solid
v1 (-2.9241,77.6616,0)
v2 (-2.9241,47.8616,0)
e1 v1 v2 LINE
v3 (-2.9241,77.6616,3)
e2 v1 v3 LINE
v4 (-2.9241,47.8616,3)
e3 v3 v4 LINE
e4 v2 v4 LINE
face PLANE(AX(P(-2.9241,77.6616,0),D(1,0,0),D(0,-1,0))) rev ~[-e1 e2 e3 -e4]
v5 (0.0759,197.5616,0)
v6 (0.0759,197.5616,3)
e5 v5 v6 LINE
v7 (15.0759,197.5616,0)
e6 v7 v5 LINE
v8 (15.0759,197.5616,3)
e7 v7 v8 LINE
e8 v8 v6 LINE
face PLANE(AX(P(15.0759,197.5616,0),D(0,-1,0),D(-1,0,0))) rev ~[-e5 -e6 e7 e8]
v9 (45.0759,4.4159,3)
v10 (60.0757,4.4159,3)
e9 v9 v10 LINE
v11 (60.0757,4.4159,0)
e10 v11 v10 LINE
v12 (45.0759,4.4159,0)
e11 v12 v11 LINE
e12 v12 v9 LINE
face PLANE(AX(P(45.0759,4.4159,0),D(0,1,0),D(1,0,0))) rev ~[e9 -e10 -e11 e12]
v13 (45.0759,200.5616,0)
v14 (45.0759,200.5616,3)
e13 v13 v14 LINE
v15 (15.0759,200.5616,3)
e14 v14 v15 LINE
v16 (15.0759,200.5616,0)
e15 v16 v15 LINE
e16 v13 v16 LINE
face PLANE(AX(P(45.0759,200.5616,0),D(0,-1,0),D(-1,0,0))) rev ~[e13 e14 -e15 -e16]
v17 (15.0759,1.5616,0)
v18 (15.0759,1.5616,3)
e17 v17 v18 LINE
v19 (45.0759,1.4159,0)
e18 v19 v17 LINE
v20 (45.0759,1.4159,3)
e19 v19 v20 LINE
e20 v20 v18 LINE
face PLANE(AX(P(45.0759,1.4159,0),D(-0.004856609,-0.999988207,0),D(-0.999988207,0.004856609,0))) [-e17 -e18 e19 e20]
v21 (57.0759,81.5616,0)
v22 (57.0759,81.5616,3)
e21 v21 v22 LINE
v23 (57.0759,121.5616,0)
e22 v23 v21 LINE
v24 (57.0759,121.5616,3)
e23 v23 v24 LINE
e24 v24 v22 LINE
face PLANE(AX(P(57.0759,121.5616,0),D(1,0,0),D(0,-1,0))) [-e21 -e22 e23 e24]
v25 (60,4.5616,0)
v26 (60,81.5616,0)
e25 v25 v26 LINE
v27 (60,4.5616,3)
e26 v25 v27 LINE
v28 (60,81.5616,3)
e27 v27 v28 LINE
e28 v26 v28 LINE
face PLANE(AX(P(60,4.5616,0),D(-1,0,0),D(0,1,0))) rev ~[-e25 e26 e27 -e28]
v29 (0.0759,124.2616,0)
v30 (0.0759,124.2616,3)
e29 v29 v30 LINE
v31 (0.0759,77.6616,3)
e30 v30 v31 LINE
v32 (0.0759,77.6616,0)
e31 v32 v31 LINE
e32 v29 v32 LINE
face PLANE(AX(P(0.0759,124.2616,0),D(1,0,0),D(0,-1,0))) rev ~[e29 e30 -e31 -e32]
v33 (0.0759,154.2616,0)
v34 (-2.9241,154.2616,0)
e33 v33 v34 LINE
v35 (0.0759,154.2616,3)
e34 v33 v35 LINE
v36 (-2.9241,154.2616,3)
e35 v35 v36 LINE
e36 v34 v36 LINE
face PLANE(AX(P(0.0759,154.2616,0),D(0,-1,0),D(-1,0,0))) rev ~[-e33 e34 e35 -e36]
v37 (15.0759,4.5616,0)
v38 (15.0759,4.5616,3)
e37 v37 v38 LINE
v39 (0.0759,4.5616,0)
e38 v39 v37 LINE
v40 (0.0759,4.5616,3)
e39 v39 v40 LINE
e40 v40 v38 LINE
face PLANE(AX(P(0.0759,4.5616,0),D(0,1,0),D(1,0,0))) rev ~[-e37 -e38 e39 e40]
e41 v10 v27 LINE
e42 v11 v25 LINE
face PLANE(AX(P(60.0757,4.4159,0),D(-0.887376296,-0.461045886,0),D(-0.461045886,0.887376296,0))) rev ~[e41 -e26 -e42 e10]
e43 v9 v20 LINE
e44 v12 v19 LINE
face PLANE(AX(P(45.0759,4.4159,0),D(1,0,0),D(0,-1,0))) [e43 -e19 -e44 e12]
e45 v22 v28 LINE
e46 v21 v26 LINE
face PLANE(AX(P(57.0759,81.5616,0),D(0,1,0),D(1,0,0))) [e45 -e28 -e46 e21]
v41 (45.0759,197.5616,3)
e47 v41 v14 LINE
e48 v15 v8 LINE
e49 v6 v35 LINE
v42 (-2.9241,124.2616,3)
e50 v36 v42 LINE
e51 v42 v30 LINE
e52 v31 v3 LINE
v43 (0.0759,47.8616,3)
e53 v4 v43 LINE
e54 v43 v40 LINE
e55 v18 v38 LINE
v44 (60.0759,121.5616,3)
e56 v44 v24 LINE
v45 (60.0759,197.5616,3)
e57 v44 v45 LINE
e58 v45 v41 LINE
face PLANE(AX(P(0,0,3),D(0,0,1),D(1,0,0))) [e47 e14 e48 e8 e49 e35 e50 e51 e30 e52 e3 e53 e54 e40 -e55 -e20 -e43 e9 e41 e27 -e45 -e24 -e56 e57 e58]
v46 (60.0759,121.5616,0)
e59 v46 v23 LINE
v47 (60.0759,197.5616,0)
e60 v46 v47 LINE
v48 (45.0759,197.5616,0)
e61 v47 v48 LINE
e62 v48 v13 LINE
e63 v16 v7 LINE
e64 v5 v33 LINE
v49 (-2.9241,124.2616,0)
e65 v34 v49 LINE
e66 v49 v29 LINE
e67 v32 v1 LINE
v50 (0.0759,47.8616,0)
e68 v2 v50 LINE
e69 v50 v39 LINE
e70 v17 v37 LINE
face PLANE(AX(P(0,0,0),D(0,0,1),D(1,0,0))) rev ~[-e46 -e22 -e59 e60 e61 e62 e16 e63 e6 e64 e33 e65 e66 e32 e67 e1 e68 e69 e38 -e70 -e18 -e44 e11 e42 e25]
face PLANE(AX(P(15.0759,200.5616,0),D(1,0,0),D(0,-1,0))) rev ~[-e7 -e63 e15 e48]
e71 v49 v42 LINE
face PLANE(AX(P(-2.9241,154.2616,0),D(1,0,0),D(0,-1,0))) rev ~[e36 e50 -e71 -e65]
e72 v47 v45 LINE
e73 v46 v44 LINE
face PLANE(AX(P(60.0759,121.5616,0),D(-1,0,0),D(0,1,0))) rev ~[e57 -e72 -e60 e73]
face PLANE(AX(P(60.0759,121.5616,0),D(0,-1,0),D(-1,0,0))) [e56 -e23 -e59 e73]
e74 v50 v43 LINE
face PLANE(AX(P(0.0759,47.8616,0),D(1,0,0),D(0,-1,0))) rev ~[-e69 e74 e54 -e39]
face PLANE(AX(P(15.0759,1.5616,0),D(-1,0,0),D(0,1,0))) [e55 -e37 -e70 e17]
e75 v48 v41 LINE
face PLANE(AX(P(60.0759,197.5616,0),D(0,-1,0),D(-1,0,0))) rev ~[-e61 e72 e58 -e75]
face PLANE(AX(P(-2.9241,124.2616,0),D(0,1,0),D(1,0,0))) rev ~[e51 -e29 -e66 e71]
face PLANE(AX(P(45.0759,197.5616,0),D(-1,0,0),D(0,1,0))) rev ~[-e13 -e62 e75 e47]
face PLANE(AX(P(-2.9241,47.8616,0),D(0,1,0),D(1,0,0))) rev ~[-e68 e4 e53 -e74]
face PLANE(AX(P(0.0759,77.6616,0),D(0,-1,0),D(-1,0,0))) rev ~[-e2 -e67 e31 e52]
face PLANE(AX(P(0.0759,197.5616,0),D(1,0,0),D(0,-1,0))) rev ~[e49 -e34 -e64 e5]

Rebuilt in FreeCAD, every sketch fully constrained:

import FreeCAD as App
import Part
import Sketcher
Q = App.Units.Quantity

doc = App.newDocument("Part")
body = doc.addObject("PartDesign::Body", "Body")

# Sketch on XY plane
sketch1 = body.newObject("Sketcher::SketchObject", "Sketch")
sketch1.AttachmentSupport = (doc.getObject("XY_Plane"), [""])
sketch1.MapMode = "FlatFace"
sketch1.addGeometry([
    Part.LineSegment(App.Vector(45.0759, 200.5616, 0), App.Vector(15.0759, 200.5616, 0)),  # 0
    Part.LineSegment(App.Vector(15.0759, 200.5616, 0), App.Vector(15.0759, 197.5616, 0)),  # 1
    Part.LineSegment(App.Vector(15.0759, 197.5616, 0), App.Vector(0.0759, 197.5616, 0)),  # 2
    Part.LineSegment(App.Vector(0.0759, 197.5616, 0), App.Vector(0.0759, 154.2616, 0)),  # 3
    Part.LineSegment(App.Vector(0.0759, 154.2616, 0), App.Vector(-2.9241, 154.2616, 0)),  # 4
    Part.LineSegment(App.Vector(-2.9241, 154.2616, 0), App.Vector(-2.9241, 124.2616, 0)),  # 5
    Part.LineSegment(App.Vector(-2.9241, 124.2616, 0), App.Vector(0.0759, 124.2616, 0)),  # 6
    Part.LineSegment(App.Vector(0.0759, 124.2616, 0), App.Vector(0.0759, 77.6616, 0)),  # 7
    Part.LineSegment(App.Vector(0.0759, 77.6616, 0), App.Vector(-2.9241, 77.6616, 0)),  # 8
    Part.LineSegment(App.Vector(-2.9241, 77.6616, 0), App.Vector(-2.9241, 47.8616, 0)),  # 9
    Part.LineSegment(App.Vector(-2.9241, 47.8616, 0), App.Vector(0.0759, 47.8616, 0)),  # 10
    Part.LineSegment(App.Vector(0.0759, 47.8616, 0), App.Vector(0.0759, 4.5616, 0)),  # 11
    Part.LineSegment(App.Vector(0.0759, 4.5616, 0), App.Vector(15.0759, 4.5616, 0)),  # 12
    Part.LineSegment(App.Vector(15.0759, 4.5616, 0), App.Vector(15.0759, 1.5616, 0)),  # 13
    Part.LineSegment(App.Vector(15.0759, 1.5616, 0), App.Vector(45.0759, 1.4159, 0)),  # 14
    Part.LineSegment(App.Vector(45.0759, 1.4159, 0), App.Vector(45.0759, 4.4159, 0)),  # 15
    Part.LineSegment(App.Vector(45.0759, 4.4159, 0), App.Vector(60.0757, 4.4159, 0)),  # 16
    Part.LineSegment(App.Vector(60.0757, 4.4159, 0), App.Vector(60, 4.5616, 0)),  # 17
    Part.LineSegment(App.Vector(60, 4.5616, 0), App.Vector(60, 81.5616, 0)),  # 18
    Part.LineSegment(App.Vector(60, 81.5616, 0), App.Vector(57.0759, 81.5616, 0)),  # 19
    Part.LineSegment(App.Vector(57.0759, 81.5616, 0), App.Vector(57.0759, 121.5616, 0)),  # 20
    Part.LineSegment(App.Vector(57.0759, 121.5616, 0), App.Vector(60.0759, 121.5616, 0)),  # 21
    Part.LineSegment(App.Vector(60.0759, 121.5616, 0), App.Vector(60.0759, 197.5616, 0)),  # 22
    Part.LineSegment(App.Vector(60.0759, 197.5616, 0), App.Vector(45.0759, 197.5616, 0)),  # 23
    Part.LineSegment(App.Vector(45.0759, 197.5616, 0), App.Vector(45.0759, 200.5616, 0)),  # 24
], False)
sketch1.addConstraint([
    Sketcher.Constraint("Coincident", 0, 2, 1, 1),
    Sketcher.Constraint("Coincident", 1, 2, 2, 1),
    Sketcher.Constraint("Coincident", 2, 2, 3, 1),
    Sketcher.Constraint("Coincident", 3, 2, 4, 1),
    Sketcher.Constraint("Coincident", 4, 2, 5, 1),
    Sketcher.Constraint("Coincident", 5, 2, 6, 1),
    Sketcher.Constraint("Coincident", 6, 2, 7, 1),
    Sketcher.Constraint("Coincident", 7, 2, 8, 1),
    Sketcher.Constraint("Coincident", 8, 2, 9, 1),
    Sketcher.Constraint("Coincident", 9, 2, 10, 1),
    Sketcher.Constraint("Coincident", 10, 2, 11, 1),
    Sketcher.Constraint("Coincident", 11, 2, 12, 1),
    Sketcher.Constraint("Coincident", 12, 2, 13, 1),
    Sketcher.Constraint("Coincident", 13, 2, 14, 1),
    Sketcher.Constraint("Coincident", 14, 2, 15, 1),
    Sketcher.Constraint("Coincident", 15, 2, 16, 1),
    Sketcher.Constraint("Coincident", 16, 2, 17, 1),
    Sketcher.Constraint("Coincident", 17, 2, 18, 1),
    Sketcher.Constraint("Coincident", 18, 2, 19, 1),
    Sketcher.Constraint("Coincident", 19, 2, 20, 1),
    Sketcher.Constraint("Coincident", 20, 2, 21, 1),
    Sketcher.Constraint("Coincident", 21, 2, 22, 1),
    Sketcher.Constraint("Coincident", 22, 2, 23, 1),
    Sketcher.Constraint("Coincident", 23, 2, 24, 1),
    Sketcher.Constraint("Coincident", 24, 2, 0, 1),
    Sketcher.Constraint("Horizontal", 0),
    Sketcher.Constraint("Vertical", 1),
    Sketcher.Constraint("Horizontal", 2),
    Sketcher.Constraint("Vertical", 3),
    Sketcher.Constraint("Horizontal", 4),
    Sketcher.Constraint("Vertical", 5),
    Sketcher.Constraint("Horizontal", 6),
    Sketcher.Constraint("Vertical", 7),
    Sketcher.Constraint("Horizontal", 8),
    Sketcher.Constraint("Vertical", 9),
    Sketcher.Constraint("Horizontal", 10),
    Sketcher.Constraint("Vertical", 11),
    Sketcher.Constraint("Horizontal", 12),
    Sketcher.Constraint("Vertical", 13),
    Sketcher.Constraint("Vertical", 15),
    Sketcher.Constraint("Horizontal", 16),
    Sketcher.Constraint("Vertical", 18),
    Sketcher.Constraint("Horizontal", 19),
    Sketcher.Constraint("Vertical", 20),
    Sketcher.Constraint("Horizontal", 21),
    Sketcher.Constraint("Vertical", 22),
    Sketcher.Constraint("Horizontal", 23),
    Sketcher.Constraint("Vertical", 24),
    Sketcher.Constraint("Horizontal", 12, 2, 17, 2),
    Sketcher.Constraint("Horizontal", 2, 2, 22, 2),
    Sketcher.Constraint("Vertical", 3, 2, 6, 2),
    Sketcher.Constraint("Vertical", 5, 2, 8, 2),
    Sketcher.Constraint("Vertical", 7, 2, 10, 2),
    Sketcher.Constraint("Vertical", 1, 2, 12, 2),
    Sketcher.Constraint("Vertical", 16, 2, 21, 2),
    Sketcher.Constraint("Vertical", 15, 2, 23, 2),
    Sketcher.Constraint("Equal", 12, 16),
    Sketcher.Constraint("Equal", 10, 21),
    Sketcher.Constraint("Equal", 21, 1),
    Sketcher.Constraint("Equal", 0, 5),
    Sketcher.Constraint("Equal", 3, 11),
    Sketcher.Constraint("Equal", 1, 13),
    Sketcher.Constraint("Equal", 13, 15),
    Sketcher.Constraint("DistanceX", 0, 2, 0, 1, Q("30 mm")),
    Sketcher.Constraint("DistanceX", 2, 2, 2, 1, Q("15 mm")),
    Sketcher.Constraint("DistanceX", 4, 2, 4, 1, Q("3 mm")),
    Sketcher.Constraint("DistanceY", 18, 1, 18, 2, Q("77 mm")),
    Sketcher.Constraint("DistanceY", 20, 1, 20, 2, Q("40 mm")),
    Sketcher.Constraint("DistanceY", 22, 1, 22, 2, Q("76 mm")),
    Sketcher.Constraint("DistanceY", 3, 2, 3, 1, Q("43.3 mm")),
    Sketcher.Constraint("DistanceY", 7, 2, 7, 1, Q("46.6 mm")),
    Sketcher.Constraint("DistanceX", -1, 1, 17, 2, Q("60 mm")),
    Sketcher.Constraint("DistanceX", 19, 2, 19, 1, Q("2.924 mm")),
    Sketcher.Constraint("DistanceY", -1, 1, 14, 2, Q("1.416 mm")),
    Sketcher.Constraint("Distance", 17, Q("0.1642 mm")),
])
pad1 = body.newObject("PartDesign::Pad", "Pad")
pad1.Profile = sketch1
pad1.Length = 3

doc.recompute()
